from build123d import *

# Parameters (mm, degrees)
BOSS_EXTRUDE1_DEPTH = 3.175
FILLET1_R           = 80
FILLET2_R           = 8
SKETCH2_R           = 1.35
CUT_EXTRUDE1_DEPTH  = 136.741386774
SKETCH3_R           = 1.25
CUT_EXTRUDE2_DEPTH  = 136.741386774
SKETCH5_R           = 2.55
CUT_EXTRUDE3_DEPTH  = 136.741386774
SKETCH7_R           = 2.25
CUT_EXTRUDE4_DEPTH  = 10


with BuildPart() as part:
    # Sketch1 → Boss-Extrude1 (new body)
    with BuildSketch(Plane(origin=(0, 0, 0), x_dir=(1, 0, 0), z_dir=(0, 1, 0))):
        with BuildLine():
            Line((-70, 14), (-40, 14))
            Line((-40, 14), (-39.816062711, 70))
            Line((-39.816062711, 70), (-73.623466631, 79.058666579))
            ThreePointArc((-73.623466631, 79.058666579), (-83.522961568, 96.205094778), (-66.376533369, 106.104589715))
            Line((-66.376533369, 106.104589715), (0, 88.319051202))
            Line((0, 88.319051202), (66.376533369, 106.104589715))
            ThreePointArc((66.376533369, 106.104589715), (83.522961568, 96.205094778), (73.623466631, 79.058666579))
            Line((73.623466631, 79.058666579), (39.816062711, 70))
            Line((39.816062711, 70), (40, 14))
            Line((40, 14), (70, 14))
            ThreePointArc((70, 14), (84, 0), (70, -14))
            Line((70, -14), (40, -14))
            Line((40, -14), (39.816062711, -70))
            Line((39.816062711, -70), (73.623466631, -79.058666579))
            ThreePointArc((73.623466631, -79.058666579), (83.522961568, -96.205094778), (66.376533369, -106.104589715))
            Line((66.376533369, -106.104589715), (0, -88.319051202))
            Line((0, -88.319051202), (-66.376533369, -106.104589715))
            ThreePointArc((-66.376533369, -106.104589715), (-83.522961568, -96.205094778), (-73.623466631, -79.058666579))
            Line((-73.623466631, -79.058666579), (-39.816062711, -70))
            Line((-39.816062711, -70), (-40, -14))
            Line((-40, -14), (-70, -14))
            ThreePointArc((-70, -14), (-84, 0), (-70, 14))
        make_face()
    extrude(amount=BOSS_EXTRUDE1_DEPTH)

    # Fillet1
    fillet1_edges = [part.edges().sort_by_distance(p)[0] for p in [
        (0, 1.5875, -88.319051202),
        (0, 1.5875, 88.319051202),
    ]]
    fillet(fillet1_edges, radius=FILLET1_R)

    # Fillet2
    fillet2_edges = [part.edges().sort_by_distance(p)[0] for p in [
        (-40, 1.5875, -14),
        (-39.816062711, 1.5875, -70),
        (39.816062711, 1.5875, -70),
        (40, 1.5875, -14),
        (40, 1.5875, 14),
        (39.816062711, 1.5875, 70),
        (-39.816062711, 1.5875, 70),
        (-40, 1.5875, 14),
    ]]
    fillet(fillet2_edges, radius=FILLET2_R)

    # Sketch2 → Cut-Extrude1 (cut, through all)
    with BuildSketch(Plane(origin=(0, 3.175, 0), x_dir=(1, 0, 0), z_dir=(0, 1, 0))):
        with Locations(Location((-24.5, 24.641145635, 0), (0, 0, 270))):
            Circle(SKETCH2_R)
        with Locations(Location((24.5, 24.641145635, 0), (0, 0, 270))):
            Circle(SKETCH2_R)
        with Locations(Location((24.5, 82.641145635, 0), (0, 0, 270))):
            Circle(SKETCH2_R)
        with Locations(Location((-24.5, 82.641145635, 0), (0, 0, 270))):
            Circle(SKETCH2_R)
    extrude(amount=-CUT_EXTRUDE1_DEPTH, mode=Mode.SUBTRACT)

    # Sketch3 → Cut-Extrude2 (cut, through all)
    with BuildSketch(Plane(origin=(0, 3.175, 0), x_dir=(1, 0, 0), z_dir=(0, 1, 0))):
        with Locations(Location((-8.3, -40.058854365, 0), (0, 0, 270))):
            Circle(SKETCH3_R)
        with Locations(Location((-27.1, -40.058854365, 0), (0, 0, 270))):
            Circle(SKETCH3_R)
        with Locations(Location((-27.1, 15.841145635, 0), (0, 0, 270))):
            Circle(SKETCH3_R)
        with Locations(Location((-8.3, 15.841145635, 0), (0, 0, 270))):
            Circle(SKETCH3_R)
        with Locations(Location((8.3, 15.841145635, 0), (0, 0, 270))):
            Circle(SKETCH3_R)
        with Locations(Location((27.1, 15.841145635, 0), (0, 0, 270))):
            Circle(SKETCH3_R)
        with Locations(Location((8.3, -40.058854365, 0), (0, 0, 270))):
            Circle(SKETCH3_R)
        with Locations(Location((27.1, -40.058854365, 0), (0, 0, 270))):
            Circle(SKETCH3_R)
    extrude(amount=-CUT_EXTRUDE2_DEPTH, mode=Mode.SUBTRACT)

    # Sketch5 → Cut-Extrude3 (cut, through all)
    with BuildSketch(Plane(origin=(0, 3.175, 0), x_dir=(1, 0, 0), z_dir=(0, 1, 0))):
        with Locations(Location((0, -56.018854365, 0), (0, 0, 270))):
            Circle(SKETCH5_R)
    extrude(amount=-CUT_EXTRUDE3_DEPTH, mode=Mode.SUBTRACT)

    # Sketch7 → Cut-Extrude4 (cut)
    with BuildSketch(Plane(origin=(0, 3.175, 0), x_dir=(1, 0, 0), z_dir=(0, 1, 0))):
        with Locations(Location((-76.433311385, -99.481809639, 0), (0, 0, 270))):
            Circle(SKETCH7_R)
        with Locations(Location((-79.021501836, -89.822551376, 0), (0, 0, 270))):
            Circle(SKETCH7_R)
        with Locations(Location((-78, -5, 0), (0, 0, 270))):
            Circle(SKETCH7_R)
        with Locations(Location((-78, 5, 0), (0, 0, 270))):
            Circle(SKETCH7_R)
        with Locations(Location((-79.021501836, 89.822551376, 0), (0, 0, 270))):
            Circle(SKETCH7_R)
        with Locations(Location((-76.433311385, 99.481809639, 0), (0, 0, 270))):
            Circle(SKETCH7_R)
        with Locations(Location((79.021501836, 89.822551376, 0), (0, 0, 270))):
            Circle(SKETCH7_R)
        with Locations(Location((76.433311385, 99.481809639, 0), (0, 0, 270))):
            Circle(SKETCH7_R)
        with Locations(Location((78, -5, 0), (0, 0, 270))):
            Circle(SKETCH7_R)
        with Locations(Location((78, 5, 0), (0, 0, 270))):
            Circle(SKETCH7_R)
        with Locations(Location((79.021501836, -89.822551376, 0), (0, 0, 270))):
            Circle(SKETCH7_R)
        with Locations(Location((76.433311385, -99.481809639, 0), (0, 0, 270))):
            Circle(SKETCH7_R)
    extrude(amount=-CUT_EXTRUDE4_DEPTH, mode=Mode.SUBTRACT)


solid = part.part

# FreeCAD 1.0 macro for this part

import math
import FreeCAD as App
import Part
import Sketcher
Q = App.Units.Quantity


def edges_at(feature, points):
    """Names of the edges that pass closest to the given points."""
    edges = feature.Shape.Edges
    near = lambda p: min(range(len(edges)), key=lambda i: edges[i].distToShape(Part.Vertex(*p))[0])
    return sorted({f"Edge{near(p) + 1}" for p in points})

doc = App.newDocument("Part")
params = doc.addObject("Spreadsheet::Sheet", "Params")
for row, (alias, value) in enumerate([
    ("sketch1_radius", "14 mm"),
    ("sketch1_width", "30 mm"),
    ("sketch1_length", "35 mm"),
    ("pad1_length", "3.175 mm"),
    ("fillet_radius", "80 mm"),
    ("fillet2_radius", "8 mm"),
    ("sketch2_diameter", "2.7 mm"),
    ("sketch3_diameter", "2.5 mm"),
    ("sketch4_diameter", "5.1 mm"),
    ("sketch5_diameter", "4.5 mm"),
    ("pocket4_length", "10 mm"),
], start=1):
    params.set(f"A{row}", alias)
    params.set(f"B{row}", "=" + value)
    params.setAlias(f"B{row}", alias)

body = doc.addObject("PartDesign::Body", "Body")

sketch1 = doc.addObject("Sketcher::SketchObject", "Sketch")
body.addObject(sketch1)
sketch1.AttachmentSupport = (doc.XZ_Plane, [""])
sketch1.MapMode = "FlatFace"
sketch1.addGeometry([
    Part.LineSegment(App.Vector(-40, -14, 0), App.Vector(-70, -14, 0)),
    Part.ArcOfCircle(Part.Circle(App.Vector(-70, 0, 0), App.Vector(0, 0, 1), 14), math.radians(90), math.radians(270)),
    Part.LineSegment(App.Vector(-70, 14, 0), App.Vector(-40, 14, 0)),
    Part.LineSegment(App.Vector(-40, 14, 0), App.Vector(-39.816063, 70, 0)),
    Part.LineSegment(App.Vector(-39.816063, 70, 0), App.Vector(-73.623467, 79.058667, 0)),
    Part.ArcOfCircle(Part.Circle(App.Vector(-70, 92.581628, 0), App.Vector(0, 0, 1), 14), math.radians(75), math.radians(255)),
    Part.LineSegment(App.Vector(-66.376533, 106.10459, 0), App.Vector(0, 88.319051, 0)),
    Part.LineSegment(App.Vector(0, 88.319051, 0), App.Vector(66.376533, 106.10459, 0)),
    Part.ArcOfCircle(Part.Circle(App.Vector(70, 92.581628, 0), App.Vector(0, 0, 1), 14), math.radians(-75), math.radians(105)),
    Part.LineSegment(App.Vector(73.623467, 79.058667, 0), App.Vector(39.816063, 70, 0)),
    Part.LineSegment(App.Vector(39.816063, 70, 0), App.Vector(40, 14, 0)),
    Part.LineSegment(App.Vector(40, 14, 0), App.Vector(70, 14, 0)),
    Part.ArcOfCircle(Part.Circle(App.Vector(70, 0, 0), App.Vector(0, 0, 1), 14), math.radians(-90), math.radians(90)),
    Part.LineSegment(App.Vector(70, -14, 0), App.Vector(40, -14, 0)),
    Part.LineSegment(App.Vector(40, -14, 0), App.Vector(39.816063, -70, 0)),
    Part.LineSegment(App.Vector(39.816063, -70, 0), App.Vector(73.623467, -79.058667, 0)),
    Part.ArcOfCircle(Part.Circle(App.Vector(70, -92.581628, 0), App.Vector(0, 0, 1), 14), math.radians(-105), math.radians(75)),
    Part.LineSegment(App.Vector(66.376533, -106.10459, 0), App.Vector(0, -88.319051, 0)),
    Part.LineSegment(App.Vector(0, -88.319051, 0), App.Vector(-66.376533, -106.10459, 0)),
    Part.ArcOfCircle(Part.Circle(App.Vector(-70, -92.581628, 0), App.Vector(0, 0, 1), 14), math.radians(105), math.radians(285)),
    Part.LineSegment(App.Vector(-73.623467, -79.058667, 0), App.Vector(-39.816063, -70, 0)),
    Part.LineSegment(App.Vector(-39.816063, -70, 0), App.Vector(-40, -14, 0)),
], False)
sketch1.addConstraint([
    Sketcher.Constraint("Tangent", 0, 2, 1, 2),
    Sketcher.Constraint("Tangent", 1, 1, 2, 1),
    Sketcher.Constraint("Coincident", 2, 2, 3, 1),
    Sketcher.Constraint("Coincident", 3, 2, 4, 1),
    Sketcher.Constraint("Tangent", 4, 2, 5, 2),
    Sketcher.Constraint("Tangent", 5, 1, 6, 1),
    Sketcher.Constraint("Coincident", 6, 2, 7, 1),
    Sketcher.Constraint("Tangent", 7, 2, 8, 2),
    Sketcher.Constraint("Tangent", 8, 1, 9, 1),
    Sketcher.Constraint("Coincident", 9, 2, 10, 1),
    Sketcher.Constraint("Coincident", 10, 2, 11, 1),
    Sketcher.Constraint("Tangent", 11, 2, 12, 2),
    Sketcher.Constraint("Tangent", 12, 1, 13, 1),
    Sketcher.Constraint("Coincident", 13, 2, 14, 1),
    Sketcher.Constraint("Coincident", 14, 2, 15, 1),
    Sketcher.Constraint("Tangent", 15, 2, 16, 2),
    Sketcher.Constraint("Tangent", 16, 1, 17, 1),
    Sketcher.Constraint("Coincident", 17, 2, 18, 1),
    Sketcher.Constraint("Tangent", 18, 2, 19, 2),
    Sketcher.Constraint("Tangent", 19, 1, 20, 1),
    Sketcher.Constraint("Coincident", 20, 2, 21, 1),
    Sketcher.Constraint("Coincident", 21, 2, 0, 1),
    Sketcher.Constraint("Horizontal", 0),
    Sketcher.Constraint("Horizontal", 2),
    Sketcher.Constraint("Horizontal", 11),
    Sketcher.Constraint("Horizontal", 13),
    Sketcher.Constraint("Equal", 1, 5),
    Sketcher.Constraint("Equal", 5, 8),
    Sketcher.Constraint("Equal", 8, 12),
    Sketcher.Constraint("Equal", 12, 16),
    Sketcher.Constraint("Equal", 16, 19),
    Sketcher.Constraint("Symmetric", 1, 3, 12, 3, -1, 1),
    Sketcher.Constraint("Symmetric", 5, 3, 16, 3, -1, 1),
    Sketcher.Constraint("Symmetric", 8, 3, 19, 3, -1, 1),
    Sketcher.Constraint("Symmetric", 3, 2, 14, 2, -1, 1),
    Sketcher.Constraint("Symmetric", 6, 2, 17, 2, -1, 1),
    Sketcher.Constraint("Symmetric", 9, 2, 20, 2, -1, 1),
    Sketcher.Constraint("Symmetric", 5, 3, 8, 3, -2),
    Sketcher.Constraint("Symmetric", 3, 2, 9, 2, -2),
    Sketcher.Constraint("Symmetric", 2, 2, 10, 2, -2),
    Sketcher.Constraint("PointOnObject", 6, 2, -2),
    Sketcher.Constraint("Parallel", 4, 6),
    Sketcher.Constraint("Parallel", 3, 14),
    Sketcher.Constraint("Parallel", 10, 21),
    Sketcher.Constraint("Vertical", 1, 3, 5, 3),
    Sketcher.Constraint("Radius", 1, Q("14 mm")),
    Sketcher.Constraint("DistanceX", 0, 2, 0, 1, Q("30 mm")),
    Sketcher.Constraint("Angle", 4, Q("165 deg")),
    Sketcher.Constraint("Distance", 4, Q("35 mm")),
    Sketcher.Constraint("DistanceX", 1, 3, -1, 1, Q("70 mm")),
    Sketcher.Constraint("DistanceY", -1, 1, 3, 2, Q("70 mm")),
])
sketch1.setExpression("Constraints[45]", "Params.sketch1_radius")
sketch1.setExpression("Constraints[46]", "Params.sketch1_width")
sketch1.setExpression("Constraints[48]", "Params.sketch1_length")
pad1 = doc.addObject("PartDesign::Pad", "Pad")
body.addObject(pad1)
pad1.Profile = sketch1
pad1.setExpression("Length", "Params.pad1_length")
pad1.Reversed = True
doc.recompute()

fillet = doc.addObject("PartDesign::Fillet", "Fillet")
body.addObject(fillet)
fillet.Base = (pad1, edges_at(pad1, [(0, 1.587, -88.319), (0, 1.587, 88.319)]))
fillet.setExpression("Radius", "Params.fillet_radius")
doc.recompute()

fillet2 = doc.addObject("PartDesign::Fillet", "Fillet001")
body.addObject(fillet2)
fillet2.Base = (fillet, edges_at(fillet, [
    (-40, 1.587, -14),
    (-39.816, 1.587, -70),
    (39.816, 1.587, -70),
    (40, 1.587, -14),
    (40, 1.587, 14),
    (39.816, 1.587, 70),
    (-39.816, 1.587, 70),
    (-40, 1.587, 14),
]))
fillet2.setExpression("Radius", "Params.fillet2_radius")

sketch2 = doc.addObject("Sketcher::SketchObject", "Sketch001")
body.addObject(sketch2)
sketch2.AttachmentSupport = (doc.XZ_Plane, [""])
sketch2.MapMode = "FlatFace"
sketch2.AttachmentOffset = App.Placement(App.Vector(0, 0, -3.175), App.Rotation())
sketch2.addGeometry([
    Part.Circle(App.Vector(-24.5, -24.641146, 0), App.Vector(0, 0, 1), 1.35),
    Part.Circle(App.Vector(24.5, -24.641146, 0), App.Vector(0, 0, 1), 1.35),
    Part.Circle(App.Vector(24.5, -82.641146, 0), App.Vector(0, 0, 1), 1.35),
    Part.Circle(App.Vector(-24.5, -82.641146, 0), App.Vector(0, 0, 1), 1.35),
], False)
sketch2.addConstraint([
    Sketcher.Constraint("Equal", 0, 1),
    Sketcher.Constraint("Equal", 1, 2),
    Sketcher.Constraint("Equal", 2, 3),
    Sketcher.Constraint("Symmetric", 0, 3, 1, 3, -2),
    Sketcher.Constraint("Symmetric", 2, 3, 3, 3, -2),
    Sketcher.Constraint("Vertical", 1, 3, 2, 3),
    Sketcher.Constraint("Diameter", 0, Q("2.7 mm")),
    Sketcher.Constraint("DistanceX", 0, 3, 1, 3, Q("49 mm")),
    Sketcher.Constraint("DistanceY", 2, 3, 1, 3, Q("58 mm")),
    Sketcher.Constraint("DistanceY", 0, 3, -1, 1, Q("24.641146 mm")),
])
sketch2.setExpression("Constraints[6]", "Params.sketch2_diameter")
pocket1 = doc.addObject("PartDesign::Pocket", "Pocket")
body.addObject(pocket1)
pocket1.Profile = sketch2
pocket1.Type = "ThroughAll"
pocket1.Reversed = True

sketch3 = doc.addObject("Sketcher::SketchObject", "Sketch002")
body.addObject(sketch3)
sketch3.AttachmentSupport = (doc.XZ_Plane, [""])
sketch3.MapMode = "FlatFace"
sketch3.AttachmentOffset = App.Placement(App.Vector(0, 0, -3.175), App.Rotation())
sketch3.addGeometry([
    Part.Circle(App.Vector(-8.3, 40.058854, 0), App.Vector(0, 0, 1), 1.25),
    Part.Circle(App.Vector(-27.1, 40.058854, 0), App.Vector(0, 0, 1), 1.25),
    Part.Circle(App.Vector(-27.1, -15.841146, 0), App.Vector(0, 0, 1), 1.25),
    Part.Circle(App.Vector(-8.3, -15.841146, 0), App.Vector(0, 0, 1), 1.25),
    Part.Circle(App.Vector(8.3, -15.841146, 0), App.Vector(0, 0, 1), 1.25),
    Part.Circle(App.Vector(27.1, -15.841146, 0), App.Vector(0, 0, 1), 1.25),
    Part.Circle(App.Vector(8.3, 40.058854, 0), App.Vector(0, 0, 1), 1.25),
    Part.Circle(App.Vector(27.1, 40.058854, 0), App.Vector(0, 0, 1), 1.25),
], False)
sketch3.addConstraint([
    Sketcher.Constraint("Equal", 0, 1),
    Sketcher.Constraint("Equal", 1, 2),
    Sketcher.Constraint("Equal", 2, 3),
    Sketcher.Constraint("Equal", 3, 4),
    Sketcher.Constraint("Equal", 4, 5),
    Sketcher.Constraint("Equal", 5, 6),
    Sketcher.Constraint("Equal", 6, 7),
    Sketcher.Constraint("Symmetric", 3, 3, 4, 3, -2),
    Sketcher.Constraint("Symmetric", 2, 3, 5, 3, -2),
    Sketcher.Constraint("Symmetric", 0, 3, 6, 3, -2),
    Sketcher.Constraint("Symmetric", 1, 3, 7, 3, -2),
    Sketcher.Constraint("Horizontal", 0, 3, 1, 3),
    Sketcher.Constraint("Horizontal", 2, 3, 3, 3),
    Sketcher.Constraint("Vertical", 1, 3, 2, 3),
    Sketcher.Constraint("Vertical", 0, 3, 3, 3),
    Sketcher.Constraint("Diameter", 0, Q("2.5 mm")),
    Sketcher.Constraint("DistanceX", 0, 3, -1, 1, Q("8.3 mm")),
    Sketcher.Constraint("DistanceX", 1, 3, -1, 1, Q("27.1 mm")),
    Sketcher.Constraint("DistanceY", 2, 3, 1, 3, Q("55.9 mm")),
    Sketcher.Constraint("DistanceY", -1, 1, 0, 3, Q("40.058854 mm")),
])
sketch3.setExpression("Constraints[15]", "Params.sketch3_diameter")
pocket2 = doc.addObject("PartDesign::Pocket", "Pocket001")
body.addObject(pocket2)
pocket2.Profile = sketch3
pocket2.Type = "ThroughAll"
pocket2.Reversed = True

sketch4 = doc.addObject("Sketcher::SketchObject", "Sketch003")
body.addObject(sketch4)
sketch4.AttachmentSupport = (doc.XZ_Plane, [""])
sketch4.MapMode = "FlatFace"
sketch4.AttachmentOffset = App.Placement(App.Vector(0, 0, -3.175), App.Rotation())
sketch4.addGeometry(Part.Circle(App.Vector(0, 56.018854, 0), App.Vector(0, 0, 1), 2.55), False)
sketch4.addConstraint([
    Sketcher.Constraint("PointOnObject", 0, 3, -2),
    Sketcher.Constraint("Diameter", 0, Q("5.1 mm")),
    Sketcher.Constraint("DistanceY", -1, 1, 0, 3, Q("56.018854 mm")),
])
sketch4.setExpression("Constraints[1]", "Params.sketch4_diameter")
pocket3 = doc.addObject("PartDesign::Pocket", "Pocket002")
body.addObject(pocket3)
pocket3.Profile = sketch4
pocket3.Type = "ThroughAll"
pocket3.Reversed = True

sketch5 = doc.addObject("Sketcher::SketchObject", "Sketch004")
body.addObject(sketch5)
sketch5.AttachmentSupport = (doc.XZ_Plane, [""])
sketch5.MapMode = "FlatFace"
sketch5.AttachmentOffset = App.Placement(App.Vector(0, 0, -3.175), App.Rotation())
sketch5.addGeometry([
    Part.Circle(App.Vector(-76.433311, 99.48181, 0), App.Vector(0, 0, 1), 2.25),
    Part.Circle(App.Vector(-79.021502, 89.822551, 0), App.Vector(0, 0, 1), 2.25),
    Part.Circle(App.Vector(-78, 5, 0), App.Vector(0, 0, 1), 2.25),
    Part.Circle(App.Vector(-78, -5, 0), App.Vector(0, 0, 1), 2.25),
    Part.Circle(App.Vector(-79.021502, -89.822551, 0), App.Vector(0, 0, 1), 2.25),
    Part.Circle(App.Vector(-76.433311, -99.48181, 0), App.Vector(0, 0, 1), 2.25),
    Part.Circle(App.Vector(79.021502, -89.822551, 0), App.Vector(0, 0, 1), 2.25),
    Part.Circle(App.Vector(76.433311, -99.48181, 0), App.Vector(0, 0, 1), 2.25),
    Part.Circle(App.Vector(78, 5, 0), App.Vector(0, 0, 1), 2.25),
    Part.Circle(App.Vector(78, -5, 0), App.Vector(0, 0, 1), 2.25),
    Part.Circle(App.Vector(79.021502, 89.822551, 0), App.Vector(0, 0, 1), 2.25),
    Part.Circle(App.Vector(76.433311, 99.48181, 0), App.Vector(0, 0, 1), 2.25),
], False)
sketch5.addConstraint([
    Sketcher.Constraint("Equal", 0, 1),
    Sketcher.Constraint("Equal", 1, 2),
    Sketcher.Constraint("Equal", 2, 3),
    Sketcher.Constraint("Equal", 3, 4),
    Sketcher.Constraint("Equal", 4, 5),
    Sketcher.Constraint("Equal", 5, 6),
    Sketcher.Constraint("Equal", 6, 7),
    Sketcher.Constraint("Equal", 7, 8),
    Sketcher.Constraint("Equal", 8, 9),
    Sketcher.Constraint("Equal", 9, 10),
    Sketcher.Constraint("Equal", 10, 11),
    Sketcher.Constraint("Symmetric", 1, 3, 6, 3, -1, 1),
    Sketcher.Constraint("Symmetric", 0, 3, 7, 3, -1, 1),
    Sketcher.Constraint("Symmetric", 3, 3, 8, 3, -1, 1),
    Sketcher.Constraint("Symmetric", 2, 3, 9, 3, -1, 1),
    Sketcher.Constraint("Symmetric", 4, 3, 10, 3, -1, 1),
    Sketcher.Constraint("Symmetric", 5, 3, 11, 3, -1, 1),
    Sketcher.Constraint("Symmetric", 4, 3, 6, 3, -2),
    Sketcher.Constraint("Symmetric", 5, 3, 7, 3, -2),
    Sketcher.Constraint("Symmetric", 2, 3, 8, 3, -2),
    Sketcher.Constraint("Diameter", 0, Q("4.5 mm")),
    Sketcher.Constraint("DistanceX", 2, 3, -1, 1, Q("78 mm")),
    Sketcher.Constraint("DistanceY", -1, 1, 2, 3, Q("5 mm")),
    Sketcher.Constraint("DistanceX", 1, 3, -1, 1, Q("79.021502 mm")),
    Sketcher.Constraint("DistanceX", 0, 3, -1, 1, Q("76.433311 mm")),
    Sketcher.Constraint("DistanceY", -1, 1, 0, 3, Q("99.48181 mm")),
    Sketcher.Constraint("DistanceY", -1, 1, 1, 3, Q("89.822551 mm")),
])
sketch5.setExpression("Constraints[20]", "Params.sketch5_diameter")
pocket4 = doc.addObject("PartDesign::Pocket", "Pocket003")
body.addObject(pocket4)
pocket4.Profile = sketch5
pocket4.setExpression("Length", "Params.pocket4_length")
pocket4.Reversed = True

doc.recompute()
